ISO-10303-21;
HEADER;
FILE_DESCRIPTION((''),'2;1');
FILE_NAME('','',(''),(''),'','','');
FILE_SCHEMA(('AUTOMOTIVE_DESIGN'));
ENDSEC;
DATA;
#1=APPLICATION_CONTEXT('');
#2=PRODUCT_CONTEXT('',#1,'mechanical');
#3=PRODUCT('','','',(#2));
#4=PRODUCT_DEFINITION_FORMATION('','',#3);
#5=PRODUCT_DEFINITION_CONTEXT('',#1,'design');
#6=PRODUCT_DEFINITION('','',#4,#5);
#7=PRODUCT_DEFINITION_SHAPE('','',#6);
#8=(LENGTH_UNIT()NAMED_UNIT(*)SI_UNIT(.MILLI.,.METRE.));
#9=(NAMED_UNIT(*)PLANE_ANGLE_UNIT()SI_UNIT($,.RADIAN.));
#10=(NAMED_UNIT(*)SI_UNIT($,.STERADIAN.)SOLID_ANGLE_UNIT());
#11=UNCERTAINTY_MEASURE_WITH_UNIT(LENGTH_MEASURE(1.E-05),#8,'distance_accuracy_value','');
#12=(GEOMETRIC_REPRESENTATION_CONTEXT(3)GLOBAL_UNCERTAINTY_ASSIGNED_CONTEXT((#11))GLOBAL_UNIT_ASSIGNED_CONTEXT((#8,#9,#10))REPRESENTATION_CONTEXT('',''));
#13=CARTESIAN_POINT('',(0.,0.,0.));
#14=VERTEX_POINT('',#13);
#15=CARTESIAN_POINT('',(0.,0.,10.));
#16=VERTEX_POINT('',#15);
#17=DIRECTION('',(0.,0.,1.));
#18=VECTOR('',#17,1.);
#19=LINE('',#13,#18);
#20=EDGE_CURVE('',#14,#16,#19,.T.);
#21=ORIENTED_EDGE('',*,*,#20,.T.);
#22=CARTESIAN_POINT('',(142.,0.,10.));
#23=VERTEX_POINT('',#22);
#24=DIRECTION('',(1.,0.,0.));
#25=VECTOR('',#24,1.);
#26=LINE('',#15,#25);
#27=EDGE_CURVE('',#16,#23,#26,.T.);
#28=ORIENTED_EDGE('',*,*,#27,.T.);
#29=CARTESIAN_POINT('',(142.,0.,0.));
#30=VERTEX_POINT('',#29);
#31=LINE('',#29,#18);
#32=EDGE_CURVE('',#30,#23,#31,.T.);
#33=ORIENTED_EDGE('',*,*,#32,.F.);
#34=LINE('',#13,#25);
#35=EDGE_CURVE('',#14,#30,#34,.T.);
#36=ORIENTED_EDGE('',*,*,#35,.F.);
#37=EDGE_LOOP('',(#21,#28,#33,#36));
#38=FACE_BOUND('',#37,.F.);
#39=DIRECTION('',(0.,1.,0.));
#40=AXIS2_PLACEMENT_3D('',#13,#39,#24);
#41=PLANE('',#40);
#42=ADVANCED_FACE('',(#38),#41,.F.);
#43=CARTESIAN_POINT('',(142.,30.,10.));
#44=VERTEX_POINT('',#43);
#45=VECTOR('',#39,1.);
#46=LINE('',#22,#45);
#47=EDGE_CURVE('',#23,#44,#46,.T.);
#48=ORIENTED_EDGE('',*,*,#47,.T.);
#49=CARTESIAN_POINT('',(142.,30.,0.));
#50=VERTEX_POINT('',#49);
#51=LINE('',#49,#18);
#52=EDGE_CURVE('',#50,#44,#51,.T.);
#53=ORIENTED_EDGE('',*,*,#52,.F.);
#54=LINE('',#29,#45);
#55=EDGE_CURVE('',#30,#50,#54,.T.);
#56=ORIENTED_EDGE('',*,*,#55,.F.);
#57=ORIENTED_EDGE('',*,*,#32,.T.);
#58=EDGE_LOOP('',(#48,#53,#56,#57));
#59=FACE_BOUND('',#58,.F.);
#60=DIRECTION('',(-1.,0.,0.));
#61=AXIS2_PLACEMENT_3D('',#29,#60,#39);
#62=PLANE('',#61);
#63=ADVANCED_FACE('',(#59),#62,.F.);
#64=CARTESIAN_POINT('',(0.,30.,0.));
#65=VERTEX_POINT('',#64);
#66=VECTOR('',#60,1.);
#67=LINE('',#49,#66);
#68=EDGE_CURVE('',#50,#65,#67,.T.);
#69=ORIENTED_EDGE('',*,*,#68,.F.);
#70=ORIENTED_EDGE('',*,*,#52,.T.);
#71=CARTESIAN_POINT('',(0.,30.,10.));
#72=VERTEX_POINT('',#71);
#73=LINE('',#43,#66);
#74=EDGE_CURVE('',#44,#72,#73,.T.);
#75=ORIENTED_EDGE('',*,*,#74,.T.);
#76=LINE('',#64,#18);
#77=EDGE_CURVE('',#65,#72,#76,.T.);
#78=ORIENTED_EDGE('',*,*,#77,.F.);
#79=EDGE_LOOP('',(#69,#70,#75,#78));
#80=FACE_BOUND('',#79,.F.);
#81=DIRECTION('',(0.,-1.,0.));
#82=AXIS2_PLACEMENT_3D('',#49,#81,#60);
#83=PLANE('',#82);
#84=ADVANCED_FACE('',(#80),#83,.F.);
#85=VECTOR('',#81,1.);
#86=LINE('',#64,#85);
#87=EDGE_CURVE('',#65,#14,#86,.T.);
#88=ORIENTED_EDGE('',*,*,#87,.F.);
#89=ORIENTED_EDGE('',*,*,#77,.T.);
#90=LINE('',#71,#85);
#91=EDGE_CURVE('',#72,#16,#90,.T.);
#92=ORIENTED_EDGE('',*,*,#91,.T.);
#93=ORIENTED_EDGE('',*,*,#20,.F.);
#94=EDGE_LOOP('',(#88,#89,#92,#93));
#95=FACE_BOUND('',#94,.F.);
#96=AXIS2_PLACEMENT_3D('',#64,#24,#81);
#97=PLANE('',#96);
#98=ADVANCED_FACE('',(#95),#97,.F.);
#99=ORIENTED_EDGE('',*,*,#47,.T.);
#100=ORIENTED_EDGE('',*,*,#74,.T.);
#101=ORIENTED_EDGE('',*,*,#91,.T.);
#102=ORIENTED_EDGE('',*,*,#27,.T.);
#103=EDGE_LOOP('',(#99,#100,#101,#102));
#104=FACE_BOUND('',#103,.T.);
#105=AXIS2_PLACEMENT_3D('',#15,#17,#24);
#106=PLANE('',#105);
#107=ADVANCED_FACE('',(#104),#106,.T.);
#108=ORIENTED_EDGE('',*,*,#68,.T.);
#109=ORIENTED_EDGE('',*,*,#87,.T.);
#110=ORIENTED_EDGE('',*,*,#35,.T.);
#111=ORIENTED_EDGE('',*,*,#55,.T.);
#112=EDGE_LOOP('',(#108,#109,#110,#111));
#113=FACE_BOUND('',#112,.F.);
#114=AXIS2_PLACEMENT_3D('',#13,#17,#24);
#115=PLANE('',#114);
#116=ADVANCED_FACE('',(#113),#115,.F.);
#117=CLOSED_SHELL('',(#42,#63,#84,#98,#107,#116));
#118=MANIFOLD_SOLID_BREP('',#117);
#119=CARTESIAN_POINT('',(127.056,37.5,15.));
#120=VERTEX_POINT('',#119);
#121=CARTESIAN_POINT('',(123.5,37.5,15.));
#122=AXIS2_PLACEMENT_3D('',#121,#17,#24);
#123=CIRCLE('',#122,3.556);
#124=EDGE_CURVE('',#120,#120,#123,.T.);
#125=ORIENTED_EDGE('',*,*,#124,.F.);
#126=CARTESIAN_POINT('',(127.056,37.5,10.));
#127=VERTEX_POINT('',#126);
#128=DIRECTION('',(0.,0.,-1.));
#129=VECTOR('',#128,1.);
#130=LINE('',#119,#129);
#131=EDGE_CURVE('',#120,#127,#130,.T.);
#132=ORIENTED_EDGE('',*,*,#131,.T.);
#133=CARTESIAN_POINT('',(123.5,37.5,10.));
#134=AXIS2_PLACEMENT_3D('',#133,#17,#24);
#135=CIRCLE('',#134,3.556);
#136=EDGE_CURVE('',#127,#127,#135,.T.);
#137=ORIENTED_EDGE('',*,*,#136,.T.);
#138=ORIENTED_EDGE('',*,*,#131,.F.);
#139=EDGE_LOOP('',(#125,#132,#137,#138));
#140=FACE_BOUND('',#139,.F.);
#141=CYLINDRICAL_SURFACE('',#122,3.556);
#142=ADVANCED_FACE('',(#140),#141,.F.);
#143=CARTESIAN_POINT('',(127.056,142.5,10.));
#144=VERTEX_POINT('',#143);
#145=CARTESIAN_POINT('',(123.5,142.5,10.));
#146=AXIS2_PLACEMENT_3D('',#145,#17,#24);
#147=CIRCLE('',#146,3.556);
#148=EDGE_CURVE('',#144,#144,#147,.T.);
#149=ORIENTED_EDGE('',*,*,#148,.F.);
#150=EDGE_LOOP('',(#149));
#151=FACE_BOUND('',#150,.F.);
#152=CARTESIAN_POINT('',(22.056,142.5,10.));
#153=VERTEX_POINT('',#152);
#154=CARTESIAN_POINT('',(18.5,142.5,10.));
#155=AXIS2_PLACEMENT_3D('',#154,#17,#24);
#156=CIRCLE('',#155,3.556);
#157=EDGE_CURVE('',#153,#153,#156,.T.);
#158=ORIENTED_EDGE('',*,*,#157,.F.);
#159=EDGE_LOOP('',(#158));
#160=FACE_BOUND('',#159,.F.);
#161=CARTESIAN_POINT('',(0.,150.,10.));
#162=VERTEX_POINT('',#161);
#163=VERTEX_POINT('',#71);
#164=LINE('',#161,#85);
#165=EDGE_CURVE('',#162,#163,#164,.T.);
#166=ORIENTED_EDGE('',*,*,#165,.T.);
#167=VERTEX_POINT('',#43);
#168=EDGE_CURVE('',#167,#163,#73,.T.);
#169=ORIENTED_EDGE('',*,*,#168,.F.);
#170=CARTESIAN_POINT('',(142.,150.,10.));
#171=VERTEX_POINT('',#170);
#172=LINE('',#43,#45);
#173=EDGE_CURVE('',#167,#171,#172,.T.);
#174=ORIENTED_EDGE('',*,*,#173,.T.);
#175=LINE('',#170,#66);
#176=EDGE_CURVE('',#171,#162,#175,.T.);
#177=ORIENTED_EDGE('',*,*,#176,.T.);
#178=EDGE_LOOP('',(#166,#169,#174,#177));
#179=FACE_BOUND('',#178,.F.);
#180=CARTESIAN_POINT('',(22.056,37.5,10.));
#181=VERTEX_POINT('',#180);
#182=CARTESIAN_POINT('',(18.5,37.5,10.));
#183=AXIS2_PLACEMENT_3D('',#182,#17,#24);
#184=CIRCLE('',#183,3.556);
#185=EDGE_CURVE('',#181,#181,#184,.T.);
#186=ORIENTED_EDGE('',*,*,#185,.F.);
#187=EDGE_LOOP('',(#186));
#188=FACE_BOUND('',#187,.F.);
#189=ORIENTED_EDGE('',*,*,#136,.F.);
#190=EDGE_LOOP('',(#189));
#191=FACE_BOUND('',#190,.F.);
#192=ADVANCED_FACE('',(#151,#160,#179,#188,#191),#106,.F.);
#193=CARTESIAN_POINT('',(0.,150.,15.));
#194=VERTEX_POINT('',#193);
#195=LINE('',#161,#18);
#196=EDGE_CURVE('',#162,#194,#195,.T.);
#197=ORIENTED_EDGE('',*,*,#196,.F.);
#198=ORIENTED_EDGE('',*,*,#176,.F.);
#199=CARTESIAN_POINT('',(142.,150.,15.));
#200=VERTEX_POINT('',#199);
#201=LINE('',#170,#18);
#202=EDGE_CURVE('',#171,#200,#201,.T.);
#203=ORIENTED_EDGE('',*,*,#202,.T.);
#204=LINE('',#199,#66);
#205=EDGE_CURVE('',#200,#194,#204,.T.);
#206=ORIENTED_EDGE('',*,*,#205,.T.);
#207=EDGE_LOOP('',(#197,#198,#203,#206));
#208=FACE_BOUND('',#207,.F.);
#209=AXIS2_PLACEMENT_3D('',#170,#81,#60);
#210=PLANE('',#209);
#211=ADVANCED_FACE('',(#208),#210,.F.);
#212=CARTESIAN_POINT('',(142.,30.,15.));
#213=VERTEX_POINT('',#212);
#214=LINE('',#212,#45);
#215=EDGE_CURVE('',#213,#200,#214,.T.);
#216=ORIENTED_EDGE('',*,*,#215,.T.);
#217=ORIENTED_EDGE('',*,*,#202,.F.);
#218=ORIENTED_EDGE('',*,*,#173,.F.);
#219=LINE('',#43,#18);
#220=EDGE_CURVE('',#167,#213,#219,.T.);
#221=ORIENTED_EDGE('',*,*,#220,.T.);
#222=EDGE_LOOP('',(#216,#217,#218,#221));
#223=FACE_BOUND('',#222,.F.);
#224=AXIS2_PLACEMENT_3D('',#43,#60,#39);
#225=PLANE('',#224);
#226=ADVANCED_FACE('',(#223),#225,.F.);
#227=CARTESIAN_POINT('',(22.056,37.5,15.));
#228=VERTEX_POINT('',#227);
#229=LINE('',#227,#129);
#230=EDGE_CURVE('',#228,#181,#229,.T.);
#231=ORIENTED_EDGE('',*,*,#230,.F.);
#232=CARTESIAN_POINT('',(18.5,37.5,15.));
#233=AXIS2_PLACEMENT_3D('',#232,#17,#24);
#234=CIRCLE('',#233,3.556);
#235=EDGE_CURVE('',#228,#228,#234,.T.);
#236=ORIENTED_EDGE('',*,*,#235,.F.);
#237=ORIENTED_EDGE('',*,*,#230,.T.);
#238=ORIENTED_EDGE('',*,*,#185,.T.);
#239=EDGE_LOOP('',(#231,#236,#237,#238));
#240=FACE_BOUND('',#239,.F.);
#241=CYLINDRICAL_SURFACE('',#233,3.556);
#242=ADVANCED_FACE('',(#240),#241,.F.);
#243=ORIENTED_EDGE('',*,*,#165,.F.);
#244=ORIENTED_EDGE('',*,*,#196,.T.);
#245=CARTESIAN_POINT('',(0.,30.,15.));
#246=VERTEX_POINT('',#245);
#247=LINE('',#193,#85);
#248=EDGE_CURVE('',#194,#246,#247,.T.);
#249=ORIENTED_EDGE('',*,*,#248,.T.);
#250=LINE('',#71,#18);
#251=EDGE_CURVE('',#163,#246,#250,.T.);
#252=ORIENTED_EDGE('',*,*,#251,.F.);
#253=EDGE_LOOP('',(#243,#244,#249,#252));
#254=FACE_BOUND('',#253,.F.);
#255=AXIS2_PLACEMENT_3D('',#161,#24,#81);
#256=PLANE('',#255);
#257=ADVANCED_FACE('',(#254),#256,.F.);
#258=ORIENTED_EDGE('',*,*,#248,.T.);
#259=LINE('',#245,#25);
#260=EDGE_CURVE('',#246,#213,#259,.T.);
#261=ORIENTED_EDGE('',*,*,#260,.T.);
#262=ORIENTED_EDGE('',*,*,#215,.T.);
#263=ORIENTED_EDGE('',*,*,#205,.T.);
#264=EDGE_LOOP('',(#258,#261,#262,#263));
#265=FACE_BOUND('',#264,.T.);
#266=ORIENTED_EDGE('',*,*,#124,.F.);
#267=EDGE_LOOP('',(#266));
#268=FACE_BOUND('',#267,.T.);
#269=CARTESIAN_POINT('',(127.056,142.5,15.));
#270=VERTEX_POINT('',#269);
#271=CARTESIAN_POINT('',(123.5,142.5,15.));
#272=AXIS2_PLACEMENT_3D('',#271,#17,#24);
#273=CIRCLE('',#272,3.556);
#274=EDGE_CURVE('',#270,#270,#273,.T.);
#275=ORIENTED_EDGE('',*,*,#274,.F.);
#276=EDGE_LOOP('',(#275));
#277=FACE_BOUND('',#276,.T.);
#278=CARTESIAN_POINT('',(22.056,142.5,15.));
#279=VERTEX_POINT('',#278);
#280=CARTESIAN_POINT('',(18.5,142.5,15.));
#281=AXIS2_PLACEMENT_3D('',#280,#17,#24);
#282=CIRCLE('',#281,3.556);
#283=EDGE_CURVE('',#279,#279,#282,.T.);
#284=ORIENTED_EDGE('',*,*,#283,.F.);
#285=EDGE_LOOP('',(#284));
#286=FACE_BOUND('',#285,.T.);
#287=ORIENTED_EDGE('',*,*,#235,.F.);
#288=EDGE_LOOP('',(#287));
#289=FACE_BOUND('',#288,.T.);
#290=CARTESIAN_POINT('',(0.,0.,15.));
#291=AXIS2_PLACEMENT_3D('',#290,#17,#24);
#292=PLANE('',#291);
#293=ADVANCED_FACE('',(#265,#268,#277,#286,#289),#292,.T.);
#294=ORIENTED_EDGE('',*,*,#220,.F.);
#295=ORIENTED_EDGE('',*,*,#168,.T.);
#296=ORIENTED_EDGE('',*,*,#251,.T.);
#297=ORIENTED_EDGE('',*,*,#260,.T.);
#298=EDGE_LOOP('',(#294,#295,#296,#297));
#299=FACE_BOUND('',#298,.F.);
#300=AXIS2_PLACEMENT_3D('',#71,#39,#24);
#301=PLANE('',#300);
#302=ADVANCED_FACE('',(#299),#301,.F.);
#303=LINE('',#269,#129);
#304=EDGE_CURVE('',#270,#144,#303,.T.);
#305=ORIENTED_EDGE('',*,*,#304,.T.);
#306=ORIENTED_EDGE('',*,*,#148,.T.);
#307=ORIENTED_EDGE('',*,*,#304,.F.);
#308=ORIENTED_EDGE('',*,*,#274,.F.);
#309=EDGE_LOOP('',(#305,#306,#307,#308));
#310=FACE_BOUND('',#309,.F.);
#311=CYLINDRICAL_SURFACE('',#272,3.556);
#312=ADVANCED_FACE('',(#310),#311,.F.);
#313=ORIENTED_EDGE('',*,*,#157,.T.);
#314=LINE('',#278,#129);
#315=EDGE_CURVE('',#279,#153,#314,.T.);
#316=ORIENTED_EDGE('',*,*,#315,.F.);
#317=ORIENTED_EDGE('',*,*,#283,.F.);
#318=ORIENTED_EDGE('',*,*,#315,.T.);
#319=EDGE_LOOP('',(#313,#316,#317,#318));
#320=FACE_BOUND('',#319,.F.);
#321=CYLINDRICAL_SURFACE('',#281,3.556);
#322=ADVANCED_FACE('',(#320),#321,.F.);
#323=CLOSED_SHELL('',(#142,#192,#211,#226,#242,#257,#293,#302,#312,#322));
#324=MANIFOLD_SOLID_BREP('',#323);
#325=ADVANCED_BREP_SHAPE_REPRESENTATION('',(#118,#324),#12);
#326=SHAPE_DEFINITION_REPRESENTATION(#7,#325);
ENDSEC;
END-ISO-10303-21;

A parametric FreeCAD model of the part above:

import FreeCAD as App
import Part
import Sketcher
Q = App.Units.Quantity


def add_polygon(sketch, points):
    """Adds a closed chain of lines whose ends are joined by coincident constraints."""
    first, n = sketch.GeometryCount, len(points)
    for a, b in zip(points, points[1:] + points[:1]):
        sketch.addGeometry(Part.LineSegment(App.Vector(*a, 0), App.Vector(*b, 0)), False)
    for i in range(n):
        sketch.addConstraint(Sketcher.Constraint("Coincident", first + i, 2, first + (i + 1) % n, 1))

doc = App.newDocument("Part")
body = doc.addObject("PartDesign::Body", "Body")
body.AllowCompound = True

# Sketch on XY plane
sketch1 = body.newObject("Sketcher::SketchObject", "Sketch")
sketch1.AttachmentSupport = (doc.getObject("XY_Plane"), [""])
sketch1.MapMode = "FlatFace"
add_polygon(sketch1, [(0, 30), (0, 0), (142, 0), (142, 30)])  # lines 0-3
sketch1.addConstraint(Sketcher.Constraint("Vertical", 0))
sketch1.addConstraint(Sketcher.Constraint("Horizontal", 1))
sketch1.addConstraint(Sketcher.Constraint("Vertical", 2))
sketch1.addConstraint(Sketcher.Constraint("Horizontal", 3))
sketch1.addConstraint(Sketcher.Constraint("Coincident", 0, 2, -1, 1))
sketch1.addConstraint(Sketcher.Constraint("DistanceX", 1, 1, 1, 2, Q("142 mm")))
sketch1.addConstraint(Sketcher.Constraint("DistanceY", 0, 2, 0, 1, Q("30 mm")))
pad1 = body.newObject("PartDesign::Pad", "Pad")
pad1.Profile = sketch1
pad1.Length = 10

# Sketch on XY plane
sketch2 = body.newObject("Sketcher::SketchObject", "Sketch001")
sketch2.AttachmentSupport = (doc.getObject("XY_Plane"), [""])
sketch2.MapMode = "FlatFace"
sketch2.AttachmentOffset = App.Placement(App.Vector(0, 0, 10), App.Rotation())
add_polygon(sketch2, [(0, 150), (0, 30), (142, 30), (142, 150)])  # lines 0-3
sketch2.addConstraint(Sketcher.Constraint("Vertical", 0))
sketch2.addConstraint(Sketcher.Constraint("Horizontal", 1))
sketch2.addConstraint(Sketcher.Constraint("Vertical", 2))
sketch2.addConstraint(Sketcher.Constraint("Horizontal", 3))
sketch2.addConstraint(Sketcher.Constraint("PointOnObject", 0, 2, -2))
sketch2.addConstraint(Sketcher.Constraint("DistanceY", 0, 2, 0, 1, Q("120 mm")))
sketch2.addConstraint(Sketcher.Constraint("DistanceX", 1, 1, 1, 2, Q("142 mm")))
sketch2.addConstraint(Sketcher.Constraint("DistanceY", -1, 1, 0, 2, Q("30 mm")))
pad2 = body.newObject("PartDesign::Pad", "Pad001")
pad2.Profile = sketch2
pad2.Length = 5

# Sketch on XY plane
sketch3 = body.newObject("Sketcher::SketchObject", "Sketch002")
sketch3.AttachmentSupport = (doc.getObject("XY_Plane"), [""])
sketch3.MapMode = "FlatFace"
sketch3.AttachmentOffset = App.Placement(App.Vector(0, 0, 15), App.Rotation())
sketch3.addGeometry(Part.Circle(App.Vector(18.5, 142.5, 0), App.Vector(0, 0, 1), 3.6), False)
sketch3.addGeometry(Part.Circle(App.Vector(123.5, 142.5, 0), App.Vector(0, 0, 1), 3.6), False)
sketch3.addGeometry(Part.Circle(App.Vector(123.5, 37.5, 0), App.Vector(0, 0, 1), 3.6), False)
sketch3.addGeometry(Part.Circle(App.Vector(18.5, 37.5, 0), App.Vector(0, 0, 1), 3.6), False)
sketch3.addConstraint(Sketcher.Constraint("Equal", 0, 1))
sketch3.addConstraint(Sketcher.Constraint("Equal", 1, 2))
sketch3.addConstraint(Sketcher.Constraint("Equal", 2, 3))
sketch3.addConstraint(Sketcher.Constraint("Horizontal", 0, 3, 1, 3))
sketch3.addConstraint(Sketcher.Constraint("Horizontal", 2, 3, 3, 3))
sketch3.addConstraint(Sketcher.Constraint("Vertical", 1, 3, 2, 3))
sketch3.addConstraint(Sketcher.Constraint("Vertical", 0, 3, 3, 3))
sketch3.addConstraint(Sketcher.Constraint("Diameter", 0, Q("7.112 mm")))
sketch3.addConstraint(Sketcher.Constraint("DistanceX", 0, 3, 1, 3, Q("105 mm")))
sketch3.addConstraint(Sketcher.Constraint("DistanceY", 2, 3, 1, 3, Q("105 mm")))
sketch3.addConstraint(Sketcher.Constraint("DistanceX", -1, 1, 0, 3, Q("18.5 mm")))
sketch3.addConstraint(Sketcher.Constraint("DistanceY", -1, 1, 0, 3, Q("142.5 mm")))
pocket1 = body.newObject("PartDesign::Pocket", "Pocket")
pocket1.Profile = sketch3
pocket1.Length = 5

doc.recompute()
